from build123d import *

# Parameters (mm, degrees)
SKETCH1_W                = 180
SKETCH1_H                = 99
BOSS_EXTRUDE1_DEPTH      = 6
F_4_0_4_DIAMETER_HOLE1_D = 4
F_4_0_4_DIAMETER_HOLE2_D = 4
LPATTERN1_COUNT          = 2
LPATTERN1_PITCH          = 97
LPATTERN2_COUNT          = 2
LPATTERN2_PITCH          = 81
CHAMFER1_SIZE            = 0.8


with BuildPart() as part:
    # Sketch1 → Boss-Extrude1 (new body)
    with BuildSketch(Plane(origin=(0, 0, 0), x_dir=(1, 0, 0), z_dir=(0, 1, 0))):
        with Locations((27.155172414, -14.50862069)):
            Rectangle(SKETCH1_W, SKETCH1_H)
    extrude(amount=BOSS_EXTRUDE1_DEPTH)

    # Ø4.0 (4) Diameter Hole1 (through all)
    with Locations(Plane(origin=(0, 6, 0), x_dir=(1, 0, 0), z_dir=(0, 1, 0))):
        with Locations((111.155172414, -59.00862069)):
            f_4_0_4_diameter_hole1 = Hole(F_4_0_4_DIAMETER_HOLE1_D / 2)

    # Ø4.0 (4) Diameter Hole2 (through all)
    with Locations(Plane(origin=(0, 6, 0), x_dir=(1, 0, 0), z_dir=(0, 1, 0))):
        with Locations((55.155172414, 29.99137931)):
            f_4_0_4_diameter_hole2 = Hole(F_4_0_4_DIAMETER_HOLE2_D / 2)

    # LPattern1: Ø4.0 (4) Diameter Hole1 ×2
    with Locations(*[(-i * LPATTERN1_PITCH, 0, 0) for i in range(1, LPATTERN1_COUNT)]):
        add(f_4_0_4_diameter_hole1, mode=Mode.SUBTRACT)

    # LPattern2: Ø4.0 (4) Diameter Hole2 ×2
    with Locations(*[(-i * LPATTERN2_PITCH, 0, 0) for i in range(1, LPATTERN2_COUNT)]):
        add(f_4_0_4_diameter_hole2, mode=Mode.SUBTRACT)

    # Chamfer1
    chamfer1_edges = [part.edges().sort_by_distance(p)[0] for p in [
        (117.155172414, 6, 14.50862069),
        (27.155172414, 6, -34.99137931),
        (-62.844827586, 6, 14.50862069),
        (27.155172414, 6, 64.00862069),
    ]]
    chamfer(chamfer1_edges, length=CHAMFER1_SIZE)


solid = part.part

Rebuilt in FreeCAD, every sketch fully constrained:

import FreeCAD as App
import Part
import Sketcher
from FreeCAD import Vector


def edges_at(feature, points):
    """Names of the edges that pass closest to the given points."""
    edges = feature.Shape.Edges
    near = lambda p: min(range(len(edges)), key=lambda i: edges[i].distToShape(Part.Vertex(*p))[0])
    return sorted({f"Edge{near(p) + 1}" for p in points})


def add_polygon(sketch, points):
    """Adds a closed chain of lines whose ends are joined by coincident constraints."""
    first, n = sketch.GeometryCount, len(points)
    for a, b in zip(points, points[1:] + points[:1]):
        sketch.addGeometry(Part.LineSegment(App.Vector(*a, 0), App.Vector(*b, 0)), False)
    for i in range(n):
        sketch.addConstraint(Sketcher.Constraint("Coincident", first + i, 2, first + (i + 1) % n, 1))

doc = App.newDocument("Part")
body = doc.addObject("PartDesign::Body", "Body")

# Sketch on XZ plane
sketch1 = doc.addObject("Sketcher::SketchObject", "Sketch")
body.addObject(sketch1)
sketch1.AttachmentSupport = (doc.XZ_Plane, [""])
sketch1.MapMode = "FlatFace"
add_polygon(sketch1, [(-63, -35), (-63, 64), (117, 64), (117, -35)])  # lines 0-3
sketch1.addConstraint([
    Sketcher.Constraint("Vertical", 0),
    Sketcher.Constraint("Horizontal", 1),
    Sketcher.Constraint("Vertical", 2),
    Sketcher.Constraint("Horizontal", 3),
    Sketcher.Constraint("DistanceX", 1, 1, 1, 2, 180.0),
    Sketcher.Constraint("DistanceY", 0, 1, 0, 2, 99.0),
    Sketcher.Constraint("DistanceY", -1, 1, 0, 2, 64.008621),
    Sketcher.Constraint("DistanceX", 0, 2, -1, 1, 62.844828),
])
pad1 = doc.addObject("PartDesign::Pad", "Pad")
body.addObject(pad1)
pad1.Profile = sketch1
pad1.Length = 6
pad1.Reversed = True

# Sketch on XZ plane
sketch2 = doc.addObject("Sketcher::SketchObject", "Sketch001")
body.addObject(sketch2)
sketch2.AttachmentSupport = (doc.XZ_Plane, [""])
sketch2.MapMode = "FlatFace"
sketch2.AttachmentOffset = App.Placement(Vector(0, 0, -6), App.Rotation())
sketch2.addGeometry(Part.Circle(Vector(111.2, 59, 0), Vector(0, 0, 1), 2), False)
sketch2.addConstraint([
    Sketcher.Constraint("Diameter", 0, 4.0),
    Sketcher.Constraint("DistanceY", -1, 1, 0, 3, 59.008621),
    Sketcher.Constraint("DistanceX", -1, 1, 0, 3, 111.155172),
])
doc.recompute()
hole = doc.addObject("PartDesign::Hole", "Hole")
body.addObject(hole)
hole.Profile = sketch2
hole.ThreadType = "None"
hole.Diameter = 4
hole.DepthType = "ThroughAll"
hole.Reversed = True

# Sketch on XZ plane
sketch3 = doc.addObject("Sketcher::SketchObject", "Sketch002")
body.addObject(sketch3)
sketch3.AttachmentSupport = (doc.XZ_Plane, [""])
sketch3.MapMode = "FlatFace"
sketch3.AttachmentOffset = App.Placement(Vector(0, 0, -6), App.Rotation())
sketch3.addGeometry(Part.Circle(Vector(55.2, -30, 0), Vector(0, 0, 1), 2), False)
sketch3.addConstraint([
    Sketcher.Constraint("Diameter", 0, 4.0),
    Sketcher.Constraint("DistanceY", 0, 3, -1, 1, 29.991379),
    Sketcher.Constraint("DistanceX", -1, 1, 0, 3, 55.155172),
])
doc.recompute()
hole2 = doc.addObject("PartDesign::Hole", "Hole001")
body.addObject(hole2)
hole2.Profile = sketch3
hole2.ThreadType = "None"
hole2.Diameter = 4
hole2.DepthType = "ThroughAll"
hole2.Reversed = True
doc.recompute()

linearpattern = doc.addObject("PartDesign::LinearPattern", "LinearPattern")
body.addObject(linearpattern)
linearpattern.Originals = [hole]
linearpattern.Direction = (doc.X_Axis, [""])
linearpattern.Mode = "offset"
linearpattern.Offset = 97
linearpattern.Occurrences = 2
linearpattern.Reversed = True
body.Tip = linearpattern
doc.recompute()

linearpattern2 = doc.addObject("PartDesign::LinearPattern", "LinearPattern001")
body.addObject(linearpattern2)
linearpattern2.Originals = [hole2]
linearpattern2.Direction = (doc.X_Axis, [""])
linearpattern2.Mode = "offset"
linearpattern2.Offset = 81
linearpattern2.Occurrences = 2
linearpattern2.Reversed = True
body.Tip = linearpattern2
doc.recompute()

chamfer = doc.addObject("PartDesign::Chamfer", "Chamfer")
body.addObject(chamfer)
chamfer.Base = (linearpattern2, edges_at(linearpattern2, [
    (117.155, 6, 14.509),
    (27.155, 6, -34.991),
    (-62.845, 6, 14.509),
    (27.155, 6, 64.009),
]))
chamfer.Size = 0.8

doc.recompute()
